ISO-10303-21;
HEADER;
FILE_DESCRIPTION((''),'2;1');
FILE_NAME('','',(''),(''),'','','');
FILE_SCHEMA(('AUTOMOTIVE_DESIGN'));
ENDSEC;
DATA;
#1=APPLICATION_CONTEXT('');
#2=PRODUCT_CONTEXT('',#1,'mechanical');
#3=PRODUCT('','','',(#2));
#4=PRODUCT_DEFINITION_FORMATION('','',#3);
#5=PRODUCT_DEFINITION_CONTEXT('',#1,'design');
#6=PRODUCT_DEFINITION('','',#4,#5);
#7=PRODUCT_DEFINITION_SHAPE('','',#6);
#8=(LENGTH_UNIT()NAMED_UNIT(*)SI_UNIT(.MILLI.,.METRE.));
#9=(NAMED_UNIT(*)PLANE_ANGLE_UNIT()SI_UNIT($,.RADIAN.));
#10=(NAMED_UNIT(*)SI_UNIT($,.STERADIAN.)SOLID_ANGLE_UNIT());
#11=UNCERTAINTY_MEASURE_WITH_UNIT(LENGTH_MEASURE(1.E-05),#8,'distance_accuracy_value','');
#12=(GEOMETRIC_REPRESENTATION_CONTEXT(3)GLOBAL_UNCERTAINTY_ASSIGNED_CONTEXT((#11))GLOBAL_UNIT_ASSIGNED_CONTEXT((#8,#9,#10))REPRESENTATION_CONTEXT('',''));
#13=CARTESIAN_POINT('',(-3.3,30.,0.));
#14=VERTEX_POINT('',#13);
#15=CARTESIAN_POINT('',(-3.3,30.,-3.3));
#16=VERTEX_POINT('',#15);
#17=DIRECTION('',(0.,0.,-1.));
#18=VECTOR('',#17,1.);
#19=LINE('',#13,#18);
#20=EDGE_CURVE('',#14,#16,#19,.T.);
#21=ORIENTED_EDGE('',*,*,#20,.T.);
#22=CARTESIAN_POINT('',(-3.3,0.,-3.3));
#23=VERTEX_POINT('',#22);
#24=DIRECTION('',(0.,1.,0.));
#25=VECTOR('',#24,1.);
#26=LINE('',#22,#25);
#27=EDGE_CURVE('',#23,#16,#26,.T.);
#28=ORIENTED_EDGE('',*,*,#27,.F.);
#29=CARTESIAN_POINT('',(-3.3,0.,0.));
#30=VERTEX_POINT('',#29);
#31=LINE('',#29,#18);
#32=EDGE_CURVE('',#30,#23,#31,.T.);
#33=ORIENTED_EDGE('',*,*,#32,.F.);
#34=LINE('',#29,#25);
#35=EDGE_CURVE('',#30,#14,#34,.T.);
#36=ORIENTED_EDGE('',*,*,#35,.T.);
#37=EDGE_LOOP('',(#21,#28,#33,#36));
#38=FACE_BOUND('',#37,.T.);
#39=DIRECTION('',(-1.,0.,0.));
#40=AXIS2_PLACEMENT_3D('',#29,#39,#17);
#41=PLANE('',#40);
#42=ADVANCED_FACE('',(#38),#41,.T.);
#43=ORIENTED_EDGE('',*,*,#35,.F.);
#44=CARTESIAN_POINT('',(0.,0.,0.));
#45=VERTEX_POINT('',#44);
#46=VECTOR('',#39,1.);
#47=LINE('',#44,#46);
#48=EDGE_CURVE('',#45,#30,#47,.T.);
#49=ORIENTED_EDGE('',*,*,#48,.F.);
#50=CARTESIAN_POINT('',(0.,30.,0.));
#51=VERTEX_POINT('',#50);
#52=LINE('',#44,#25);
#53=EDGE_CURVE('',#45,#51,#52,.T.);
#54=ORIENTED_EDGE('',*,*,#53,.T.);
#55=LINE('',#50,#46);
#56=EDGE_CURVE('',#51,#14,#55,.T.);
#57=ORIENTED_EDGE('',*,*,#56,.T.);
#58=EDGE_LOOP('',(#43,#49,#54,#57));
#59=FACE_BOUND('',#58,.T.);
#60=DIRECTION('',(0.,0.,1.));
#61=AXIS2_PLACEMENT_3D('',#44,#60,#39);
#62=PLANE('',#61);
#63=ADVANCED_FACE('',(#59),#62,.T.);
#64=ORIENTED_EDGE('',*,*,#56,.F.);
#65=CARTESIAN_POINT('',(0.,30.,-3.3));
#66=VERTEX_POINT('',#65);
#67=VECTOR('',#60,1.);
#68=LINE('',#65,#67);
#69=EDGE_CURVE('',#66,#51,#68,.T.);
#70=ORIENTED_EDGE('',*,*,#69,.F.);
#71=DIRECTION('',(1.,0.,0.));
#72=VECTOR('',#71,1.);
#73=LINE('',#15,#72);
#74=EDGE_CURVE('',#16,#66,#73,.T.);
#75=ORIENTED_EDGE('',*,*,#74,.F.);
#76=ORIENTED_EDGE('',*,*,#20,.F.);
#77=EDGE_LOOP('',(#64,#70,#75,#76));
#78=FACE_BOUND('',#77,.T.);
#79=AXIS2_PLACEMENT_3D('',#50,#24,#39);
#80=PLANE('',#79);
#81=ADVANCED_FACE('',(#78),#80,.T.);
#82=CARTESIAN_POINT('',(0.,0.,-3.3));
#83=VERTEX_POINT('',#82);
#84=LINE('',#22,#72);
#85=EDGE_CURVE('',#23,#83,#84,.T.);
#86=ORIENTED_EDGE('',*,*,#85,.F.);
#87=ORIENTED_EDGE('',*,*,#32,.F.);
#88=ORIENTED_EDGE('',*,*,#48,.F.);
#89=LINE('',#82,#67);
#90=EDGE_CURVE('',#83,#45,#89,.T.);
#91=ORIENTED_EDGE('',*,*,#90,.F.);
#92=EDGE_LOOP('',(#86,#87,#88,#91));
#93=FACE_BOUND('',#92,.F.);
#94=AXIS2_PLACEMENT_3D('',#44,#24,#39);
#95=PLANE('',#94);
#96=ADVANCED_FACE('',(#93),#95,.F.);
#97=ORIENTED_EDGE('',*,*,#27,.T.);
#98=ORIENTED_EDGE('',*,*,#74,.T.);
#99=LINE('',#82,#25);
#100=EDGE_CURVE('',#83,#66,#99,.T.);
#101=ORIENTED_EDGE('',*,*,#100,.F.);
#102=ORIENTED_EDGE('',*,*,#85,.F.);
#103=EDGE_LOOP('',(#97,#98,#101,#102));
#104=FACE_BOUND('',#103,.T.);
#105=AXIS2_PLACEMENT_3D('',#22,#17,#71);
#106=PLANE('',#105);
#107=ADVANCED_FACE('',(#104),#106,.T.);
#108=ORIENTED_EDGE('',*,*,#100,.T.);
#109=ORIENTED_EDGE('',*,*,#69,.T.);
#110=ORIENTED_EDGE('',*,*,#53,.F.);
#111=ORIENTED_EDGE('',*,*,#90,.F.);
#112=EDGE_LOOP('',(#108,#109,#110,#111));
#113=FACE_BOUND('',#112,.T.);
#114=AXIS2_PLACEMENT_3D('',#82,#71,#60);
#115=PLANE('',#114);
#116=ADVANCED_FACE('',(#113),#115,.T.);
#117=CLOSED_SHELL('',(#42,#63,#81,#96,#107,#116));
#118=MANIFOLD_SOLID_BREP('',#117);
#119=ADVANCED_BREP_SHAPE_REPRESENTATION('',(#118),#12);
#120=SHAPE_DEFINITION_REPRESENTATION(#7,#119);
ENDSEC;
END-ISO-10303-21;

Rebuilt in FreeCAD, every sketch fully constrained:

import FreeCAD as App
import Part
import Sketcher

V = App.Vector
Q = App.Units.Quantity


def add_polygon(sketch, points):
    """Adds a closed chain of lines whose ends are joined by coincident constraints."""
    first, n = sketch.GeometryCount, len(points)
    for a, b in zip(points, points[1:] + points[:1]):
        sketch.addGeometry(Part.LineSegment(App.Vector(*a, 0), App.Vector(*b, 0)), False)
    for i in range(n):
        sketch.addConstraint(Sketcher.Constraint("Coincident", first + i, 2, first + (i + 1) % n, 1))

doc = App.newDocument("Part")
params = doc.addObject("Spreadsheet::Sheet", "Params")
for row, (alias, value) in enumerate([
    ("sketch1_width", "3.3 mm"),
    ("pad1_length", "30 mm"),
], start=1):
    params.set(f"A{row}", alias)
    params.set(f"B{row}", "=" + value)
    params.setAlias(f"B{row}", alias)

body = doc.addObject("PartDesign::Body", "Body")

# Sketch on XZ plane
sketch1 = doc.addObject("Sketcher::SketchObject", "Sketch")
body.addObject(sketch1)
sketch1.AttachmentSupport = (doc.XZ_Plane, [""])
sketch1.MapMode = "FlatFace"
add_polygon(sketch1, [(-3.3, 0), (0, 0), (0, -3.3), (-3.3, -3.3)])  # lines 0-3
sketch1.addConstraint(Sketcher.Constraint("Horizontal", 0))
sketch1.addConstraint(Sketcher.Constraint("Vertical", 1))
sketch1.addConstraint(Sketcher.Constraint("Horizontal", 2))
sketch1.addConstraint(Sketcher.Constraint("Vertical", 3))
sketch1.addConstraint(Sketcher.Constraint("Coincident", 0, 2, -1, 1))
sketch1.addConstraint(Sketcher.Constraint("Equal", 2, 1))
sketch1.addConstraint(Sketcher.Constraint("DistanceX", 0, 1, 0, 2, Q("3.3 mm")))
sketch1.setExpression("Constraints[10]", "Params.sketch1_width")
pad1 = doc.addObject("PartDesign::Pad", "Pad")
body.addObject(pad1)
pad1.Profile = sketch1
pad1.setExpression("Length", "Params.pad1_length")
pad1.Reversed = True

doc.recompute()
